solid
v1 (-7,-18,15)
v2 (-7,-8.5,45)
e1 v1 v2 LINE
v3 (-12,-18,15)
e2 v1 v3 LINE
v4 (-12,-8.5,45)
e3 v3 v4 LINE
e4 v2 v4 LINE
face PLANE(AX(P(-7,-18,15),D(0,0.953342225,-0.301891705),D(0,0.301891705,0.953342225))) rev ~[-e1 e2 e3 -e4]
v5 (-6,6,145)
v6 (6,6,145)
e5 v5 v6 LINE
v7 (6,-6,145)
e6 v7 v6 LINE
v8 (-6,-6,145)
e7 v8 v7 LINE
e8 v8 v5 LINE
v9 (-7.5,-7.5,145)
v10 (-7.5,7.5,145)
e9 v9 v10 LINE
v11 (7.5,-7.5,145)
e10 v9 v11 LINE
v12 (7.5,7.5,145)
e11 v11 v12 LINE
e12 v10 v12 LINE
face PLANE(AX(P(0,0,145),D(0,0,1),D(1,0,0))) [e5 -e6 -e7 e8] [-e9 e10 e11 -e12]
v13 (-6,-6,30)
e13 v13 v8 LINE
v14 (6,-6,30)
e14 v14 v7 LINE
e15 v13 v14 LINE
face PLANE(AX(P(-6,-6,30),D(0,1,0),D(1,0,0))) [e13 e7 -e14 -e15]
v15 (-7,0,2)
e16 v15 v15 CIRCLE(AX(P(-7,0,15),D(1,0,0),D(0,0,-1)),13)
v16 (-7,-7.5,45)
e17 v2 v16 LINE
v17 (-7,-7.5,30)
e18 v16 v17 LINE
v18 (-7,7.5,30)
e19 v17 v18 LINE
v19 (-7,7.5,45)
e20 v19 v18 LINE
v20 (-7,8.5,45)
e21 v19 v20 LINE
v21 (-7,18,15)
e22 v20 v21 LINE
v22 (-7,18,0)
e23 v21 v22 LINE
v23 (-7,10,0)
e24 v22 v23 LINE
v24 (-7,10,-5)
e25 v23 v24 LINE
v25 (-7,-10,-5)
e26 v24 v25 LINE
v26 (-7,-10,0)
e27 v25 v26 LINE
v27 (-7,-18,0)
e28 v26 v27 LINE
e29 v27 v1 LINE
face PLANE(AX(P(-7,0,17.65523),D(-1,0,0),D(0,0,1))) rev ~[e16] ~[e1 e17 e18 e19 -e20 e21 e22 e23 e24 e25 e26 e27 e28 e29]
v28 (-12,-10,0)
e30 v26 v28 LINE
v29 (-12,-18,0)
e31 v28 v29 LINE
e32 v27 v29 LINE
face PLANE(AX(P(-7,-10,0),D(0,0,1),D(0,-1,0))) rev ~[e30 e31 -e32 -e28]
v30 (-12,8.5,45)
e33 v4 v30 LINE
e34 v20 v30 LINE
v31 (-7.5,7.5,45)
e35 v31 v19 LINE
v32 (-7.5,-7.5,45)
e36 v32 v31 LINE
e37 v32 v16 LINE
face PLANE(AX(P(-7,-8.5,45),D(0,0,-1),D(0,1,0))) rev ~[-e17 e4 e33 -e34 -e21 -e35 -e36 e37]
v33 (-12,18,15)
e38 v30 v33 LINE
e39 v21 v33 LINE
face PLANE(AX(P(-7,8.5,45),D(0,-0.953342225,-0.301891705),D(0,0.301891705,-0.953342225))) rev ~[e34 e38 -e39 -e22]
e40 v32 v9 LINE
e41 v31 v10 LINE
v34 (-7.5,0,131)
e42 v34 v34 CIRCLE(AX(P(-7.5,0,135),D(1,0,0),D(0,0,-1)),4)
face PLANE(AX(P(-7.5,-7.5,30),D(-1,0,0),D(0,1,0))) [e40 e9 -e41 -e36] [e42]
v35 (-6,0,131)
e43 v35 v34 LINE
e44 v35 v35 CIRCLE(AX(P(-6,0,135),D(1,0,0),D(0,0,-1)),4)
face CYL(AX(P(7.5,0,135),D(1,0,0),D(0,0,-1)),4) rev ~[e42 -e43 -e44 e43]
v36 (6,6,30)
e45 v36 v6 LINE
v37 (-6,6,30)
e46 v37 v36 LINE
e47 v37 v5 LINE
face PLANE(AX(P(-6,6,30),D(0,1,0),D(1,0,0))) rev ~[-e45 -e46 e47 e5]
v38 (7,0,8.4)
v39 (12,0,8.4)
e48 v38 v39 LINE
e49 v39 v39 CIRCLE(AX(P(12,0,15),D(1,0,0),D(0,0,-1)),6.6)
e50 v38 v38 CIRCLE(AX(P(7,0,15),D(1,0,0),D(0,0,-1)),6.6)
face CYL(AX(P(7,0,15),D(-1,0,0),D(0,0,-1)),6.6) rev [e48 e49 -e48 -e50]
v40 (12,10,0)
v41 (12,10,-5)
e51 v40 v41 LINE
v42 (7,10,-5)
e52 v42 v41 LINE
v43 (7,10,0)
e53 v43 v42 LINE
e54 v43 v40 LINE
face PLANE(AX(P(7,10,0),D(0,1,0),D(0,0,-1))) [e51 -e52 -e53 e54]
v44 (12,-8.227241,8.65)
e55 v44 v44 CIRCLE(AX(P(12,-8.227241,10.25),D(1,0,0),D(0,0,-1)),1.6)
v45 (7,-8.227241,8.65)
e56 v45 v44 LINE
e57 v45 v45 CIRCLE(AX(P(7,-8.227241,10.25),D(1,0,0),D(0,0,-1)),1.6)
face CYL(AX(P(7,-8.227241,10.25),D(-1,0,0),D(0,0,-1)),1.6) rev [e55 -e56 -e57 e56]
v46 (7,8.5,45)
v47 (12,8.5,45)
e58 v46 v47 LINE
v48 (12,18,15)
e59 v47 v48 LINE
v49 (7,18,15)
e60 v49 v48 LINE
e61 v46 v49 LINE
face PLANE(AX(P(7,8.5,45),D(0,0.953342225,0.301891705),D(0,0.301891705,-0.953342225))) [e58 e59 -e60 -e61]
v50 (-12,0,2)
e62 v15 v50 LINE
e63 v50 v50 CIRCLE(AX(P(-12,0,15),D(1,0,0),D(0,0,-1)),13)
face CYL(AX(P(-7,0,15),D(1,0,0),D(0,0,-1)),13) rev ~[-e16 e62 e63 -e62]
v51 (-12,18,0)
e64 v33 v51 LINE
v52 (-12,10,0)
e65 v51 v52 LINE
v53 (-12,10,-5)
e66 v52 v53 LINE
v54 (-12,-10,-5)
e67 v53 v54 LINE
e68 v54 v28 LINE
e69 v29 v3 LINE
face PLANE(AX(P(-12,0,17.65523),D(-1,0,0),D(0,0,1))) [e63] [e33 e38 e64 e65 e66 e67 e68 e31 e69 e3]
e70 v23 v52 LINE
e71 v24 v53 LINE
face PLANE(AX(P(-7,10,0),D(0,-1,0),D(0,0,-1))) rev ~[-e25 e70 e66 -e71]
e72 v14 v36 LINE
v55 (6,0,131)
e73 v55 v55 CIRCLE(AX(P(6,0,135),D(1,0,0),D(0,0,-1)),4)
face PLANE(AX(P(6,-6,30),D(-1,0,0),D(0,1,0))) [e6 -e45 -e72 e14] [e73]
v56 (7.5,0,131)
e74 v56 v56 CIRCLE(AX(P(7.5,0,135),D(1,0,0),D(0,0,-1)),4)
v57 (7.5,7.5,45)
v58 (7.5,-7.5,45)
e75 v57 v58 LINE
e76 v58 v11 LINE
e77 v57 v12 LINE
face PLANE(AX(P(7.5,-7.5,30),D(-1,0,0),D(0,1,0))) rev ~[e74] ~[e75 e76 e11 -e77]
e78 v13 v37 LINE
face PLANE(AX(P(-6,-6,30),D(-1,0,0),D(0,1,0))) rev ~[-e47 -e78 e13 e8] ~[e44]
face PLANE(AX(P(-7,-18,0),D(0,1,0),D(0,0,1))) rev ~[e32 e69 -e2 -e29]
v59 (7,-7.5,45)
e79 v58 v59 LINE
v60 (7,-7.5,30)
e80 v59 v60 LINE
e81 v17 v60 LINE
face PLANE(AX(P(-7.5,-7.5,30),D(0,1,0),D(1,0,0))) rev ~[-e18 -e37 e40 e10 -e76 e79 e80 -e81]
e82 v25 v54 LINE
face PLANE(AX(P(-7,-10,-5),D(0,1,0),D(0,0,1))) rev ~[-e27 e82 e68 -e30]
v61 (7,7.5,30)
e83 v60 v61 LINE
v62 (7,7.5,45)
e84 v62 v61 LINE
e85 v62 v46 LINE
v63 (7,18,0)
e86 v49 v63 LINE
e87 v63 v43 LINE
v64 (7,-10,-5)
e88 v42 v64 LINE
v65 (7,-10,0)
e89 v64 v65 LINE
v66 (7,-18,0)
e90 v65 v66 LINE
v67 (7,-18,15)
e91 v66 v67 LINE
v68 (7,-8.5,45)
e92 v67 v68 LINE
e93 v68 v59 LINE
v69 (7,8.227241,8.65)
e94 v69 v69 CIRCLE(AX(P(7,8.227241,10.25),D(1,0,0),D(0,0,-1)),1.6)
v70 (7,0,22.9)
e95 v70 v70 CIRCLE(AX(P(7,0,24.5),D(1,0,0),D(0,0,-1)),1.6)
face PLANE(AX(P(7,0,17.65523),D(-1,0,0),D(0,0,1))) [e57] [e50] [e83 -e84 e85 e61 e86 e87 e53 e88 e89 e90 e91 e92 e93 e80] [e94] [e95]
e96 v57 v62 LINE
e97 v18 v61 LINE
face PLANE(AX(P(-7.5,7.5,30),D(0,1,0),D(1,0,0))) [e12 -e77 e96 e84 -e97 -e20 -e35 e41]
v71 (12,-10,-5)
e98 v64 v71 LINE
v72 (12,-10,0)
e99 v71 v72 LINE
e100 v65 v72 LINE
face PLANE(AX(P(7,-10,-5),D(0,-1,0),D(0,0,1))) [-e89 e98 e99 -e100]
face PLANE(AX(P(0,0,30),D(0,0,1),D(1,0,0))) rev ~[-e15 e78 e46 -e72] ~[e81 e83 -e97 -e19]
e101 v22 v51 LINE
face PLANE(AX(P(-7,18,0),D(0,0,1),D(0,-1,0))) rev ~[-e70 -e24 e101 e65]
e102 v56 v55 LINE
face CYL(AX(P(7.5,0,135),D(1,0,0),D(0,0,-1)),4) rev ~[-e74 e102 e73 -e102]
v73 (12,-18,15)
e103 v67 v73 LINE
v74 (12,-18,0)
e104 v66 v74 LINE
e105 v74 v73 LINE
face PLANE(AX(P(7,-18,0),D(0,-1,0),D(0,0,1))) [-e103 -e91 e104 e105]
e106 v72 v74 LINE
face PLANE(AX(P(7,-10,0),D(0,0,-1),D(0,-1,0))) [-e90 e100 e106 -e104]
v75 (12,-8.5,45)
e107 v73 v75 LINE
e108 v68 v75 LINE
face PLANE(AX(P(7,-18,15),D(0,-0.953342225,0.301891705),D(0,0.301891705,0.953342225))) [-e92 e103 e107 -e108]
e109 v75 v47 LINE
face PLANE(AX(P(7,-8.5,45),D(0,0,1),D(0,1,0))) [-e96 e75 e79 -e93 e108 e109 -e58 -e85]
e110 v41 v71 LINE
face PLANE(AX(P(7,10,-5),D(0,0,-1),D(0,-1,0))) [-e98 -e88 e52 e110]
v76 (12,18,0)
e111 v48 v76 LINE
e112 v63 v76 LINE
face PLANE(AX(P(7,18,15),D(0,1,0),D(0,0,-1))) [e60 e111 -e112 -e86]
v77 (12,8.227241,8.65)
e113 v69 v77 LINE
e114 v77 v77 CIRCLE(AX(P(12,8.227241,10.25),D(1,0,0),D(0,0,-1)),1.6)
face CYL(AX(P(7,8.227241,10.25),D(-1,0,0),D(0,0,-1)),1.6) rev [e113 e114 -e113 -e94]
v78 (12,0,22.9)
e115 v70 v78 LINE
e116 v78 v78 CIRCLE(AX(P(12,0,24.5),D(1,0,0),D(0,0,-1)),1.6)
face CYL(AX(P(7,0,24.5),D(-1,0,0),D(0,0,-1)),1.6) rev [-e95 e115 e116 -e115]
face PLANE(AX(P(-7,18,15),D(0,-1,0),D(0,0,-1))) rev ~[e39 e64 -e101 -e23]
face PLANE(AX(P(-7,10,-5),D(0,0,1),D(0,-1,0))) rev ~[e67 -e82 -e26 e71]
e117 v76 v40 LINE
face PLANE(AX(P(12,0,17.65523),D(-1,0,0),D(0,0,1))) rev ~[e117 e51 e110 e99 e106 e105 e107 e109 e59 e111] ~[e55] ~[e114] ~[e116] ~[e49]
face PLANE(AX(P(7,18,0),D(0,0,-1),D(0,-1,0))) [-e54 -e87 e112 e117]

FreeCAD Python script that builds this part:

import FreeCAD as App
import Part
import Sketcher


def add_polygon(sketch, points):
    """Adds a closed chain of lines whose ends are joined by coincident constraints."""
    first, n = sketch.GeometryCount, len(points)
    for a, b in zip(points, points[1:] + points[:1]):
        sketch.addGeometry(Part.LineSegment(App.Vector(*a, 0), App.Vector(*b, 0)), False)
    for i in range(n):
        sketch.addConstraint(Sketcher.Constraint("Coincident", first + i, 2, first + (i + 1) % n, 1))

doc = App.newDocument("Part")
body = doc.addObject("PartDesign::Body", "Body")

# Sketch on YZ plane
sketch1 = body.newObject("Sketcher::SketchObject", "Sketch")
sketch1.AttachmentSupport = (doc.getObject("YZ_Plane"), [""])
sketch1.MapMode = "FlatFace"
sketch1.AttachmentOffset = App.Placement(App.Vector(0, 0, 7), App.Rotation())
add_polygon(sketch1, [(-10, -5), (10, -5), (10, 0), (18, 0), (18, 15), (8.5, 45), (-8.5, 45), (-18, 15), (-18, 0), (-10, 0)])  # lines 0-9
sketch1.addGeometry(Part.Circle(App.Vector(-8.227241, 10.25, 0), App.Vector(0, 0, 1), 1.6), False)  # 10
sketch1.addGeometry(Part.Circle(App.Vector(0, 15, 0), App.Vector(0, 0, 1), 6.6), False)  # 11
sketch1.addGeometry(Part.Circle(App.Vector(8.227241, 10.25, 0), App.Vector(0, 0, 1), 1.6), False)  # 12
sketch1.addGeometry(Part.Circle(App.Vector(0, 24.5, 0), App.Vector(0, 0, 1), 1.6), False)  # 13
sketch1.addConstraint([
    Sketcher.Constraint("Horizontal", 0),
    Sketcher.Constraint("Vertical", 1),
    Sketcher.Constraint("Horizontal", 2),
    Sketcher.Constraint("Vertical", 3),
    Sketcher.Constraint("Horizontal", 5),
    Sketcher.Constraint("Vertical", 7),
    Sketcher.Constraint("Horizontal", 8),
    Sketcher.Constraint("Vertical", 9),
    Sketcher.Constraint("Equal", 10, 12),
    Sketcher.Constraint("Equal", 12, 13),
    Sketcher.Constraint("Symmetric", 2, 2, 7, 2, -1, 1),
    Sketcher.Constraint("Symmetric", 10, 3, 12, 3, -2),
    Sketcher.Constraint("Symmetric", 1, 2, 8, 2, -2),
    Sketcher.Constraint("PointOnObject", 11, 3, -2),
    Sketcher.Constraint("PointOnObject", 13, 3, -2),
    Sketcher.Constraint("Horizontal", 11, 3, 3, 2),
    Sketcher.Constraint("Horizontal", 3, 2, 6, 2),
    Sketcher.Constraint("Equal", 4, 6),
    Sketcher.Constraint("Diameter", 10, 3.2),
    Sketcher.Constraint("Diameter", 11, 13.2),
    Sketcher.Constraint("DistanceX", 0, 1, 0, 2, 20.0),
    Sketcher.Constraint("DistanceX", 2, 1, 2, 2, 8.0),
    Sketcher.Constraint("DistanceX", 5, 2, 5, 1, 17.0),
    Sketcher.Constraint("DistanceY", 1, 1, 1, 2, 5.0),
    Sketcher.Constraint("DistanceY", 3, 1, 3, 2, 15.0),
    Sketcher.Constraint("DistanceY", -1, 1, 4, 2, 45.0),
    Sketcher.Constraint("DistanceY", -1, 1, 13, 3, 24.5),
    Sketcher.Constraint("DistanceY", -1, 1, 10, 3, 10.25),
    Sketcher.Constraint("DistanceX", 10, 3, -1, 1, 8.227241),
])
pad1 = body.newObject("PartDesign::Pad", "Pad")
pad1.Profile = sketch1
pad1.Length = 5
body2 = doc.addObject("PartDesign::Body", "Body001")

# Sketch on YZ plane
sketch2 = body2.newObject("Sketcher::SketchObject", "Sketch001")
sketch2.AttachmentSupport = (doc.getObject("YZ_Plane001"), [""])
sketch2.MapMode = "FlatFace"
sketch2.AttachmentOffset = App.Placement(App.Vector(0, 0, -7), App.Rotation())
add_polygon(sketch2, [(8.5, 45), (-8.5, 45), (-18, 15), (-18, 0), (-10, 0), (-10, -5), (10, -5), (10, 0), (18, 0), (18, 15)])  # lines 0-9
sketch2.addGeometry(Part.Circle(App.Vector(0, 15, 0), App.Vector(0, 0, 1), 13), False)  # 10
sketch2.addConstraint([
    Sketcher.Constraint("Horizontal", 0),
    Sketcher.Constraint("Vertical", 2),
    Sketcher.Constraint("Horizontal", 3),
    Sketcher.Constraint("Vertical", 4),
    Sketcher.Constraint("Horizontal", 5),
    Sketcher.Constraint("Vertical", 6),
    Sketcher.Constraint("Horizontal", 7),
    Sketcher.Constraint("Vertical", 8),
    Sketcher.Constraint("Symmetric", 3, 2, 6, 2, -1, 1),
    Sketcher.Constraint("Symmetric", 2, 2, 7, 2, -2),
    Sketcher.Constraint("PointOnObject", 10, 3, -2),
    Sketcher.Constraint("Horizontal", 10, 3, 1, 2),
    Sketcher.Constraint("Horizontal", 1, 2, 8, 2),
    Sketcher.Constraint("Equal", 1, 9),
    Sketcher.Constraint("Diameter", 10, 26.0),
    Sketcher.Constraint("DistanceX", 0, 2, 0, 1, 17.0),
    Sketcher.Constraint("DistanceX", 3, 1, 3, 2, 8.0),
    Sketcher.Constraint("DistanceX", 5, 1, 5, 2, 20.0),
    Sketcher.Constraint("DistanceY", 2, 2, 2, 1, 15.0),
    Sketcher.Constraint("DistanceY", 4, 2, 4, 1, 5.0),
    Sketcher.Constraint("DistanceY", -1, 1, 0, 2, 45.0),
])
pad2 = body2.newObject("PartDesign::Pad", "Pad001")
pad2.Profile = sketch2
pad2.Length = 5
pad2.Reversed = True
body.AllowCompound = True
doc.recompute()

boolean = body.newObject("PartDesign::Boolean", "Boolean")
boolean.Type = "Fuse"
boolean.addObjects([body2])

# Sketch on XY plane
sketch3 = body.newObject("Sketcher::SketchObject", "Sketch002")
sketch3.AttachmentSupport = (doc.getObject("XY_Plane"), [""])
sketch3.MapMode = "FlatFace"
sketch3.AttachmentOffset = App.Placement(App.Vector(0, 0, 45), App.Rotation())
add_polygon(sketch3, [(-7.5, 7.5), (-7.5, -7.5), (7.5, -7.5), (7.5, 7.5)])  # lines 0-3
add_polygon(sketch3, [(6, -6), (-6, -6), (-6, 6), (6, 6)])  # lines 4-7
sketch3.addConstraint([
    Sketcher.Constraint("Vertical", 0),
    Sketcher.Constraint("Horizontal", 1),
    Sketcher.Constraint("Vertical", 2),
    Sketcher.Constraint("Horizontal", 3),
    Sketcher.Constraint("Horizontal", 4),
    Sketcher.Constraint("Vertical", 5),
    Sketcher.Constraint("Horizontal", 6),
    Sketcher.Constraint("Vertical", 7),
    Sketcher.Constraint("Symmetric", 0, 2, 2, 2, -1, 1),
    Sketcher.Constraint("Symmetric", 4, 2, 6, 2, -1, 1),
    Sketcher.Constraint("Equal", 3, 0),
    Sketcher.Constraint("Equal", 6, 5),
    Sketcher.Constraint("DistanceX", 1, 1, 1, 2, 15.0),
    Sketcher.Constraint("DistanceX", 4, 2, 4, 1, 12.0),
])
pad3 = body.newObject("PartDesign::Pad", "Pad002")
pad3.Profile = sketch3
pad3.Type = "TwoLengths"
pad3.Length = 100
pad3.Length2 = 15

# Sketch on YZ plane
sketch4 = body.newObject("Sketcher::SketchObject", "Sketch003")
sketch4.AttachmentSupport = (doc.getObject("YZ_Plane"), [""])
sketch4.MapMode = "FlatFace"
sketch4.AttachmentOffset = App.Placement(App.Vector(0, 0, 7.5), App.Rotation())
sketch4.addGeometry(Part.Circle(App.Vector(0, 135, 0), App.Vector(0, 0, 1), 4), False)
sketch4.addConstraint([
    Sketcher.Constraint("PointOnObject", 0, 3, -2),
    Sketcher.Constraint("Diameter", 0, 8.0),
    Sketcher.Constraint("DistanceY", -1, 1, 0, 3, 135.0),
])
pocket1 = body.newObject("PartDesign::Pocket", "Pocket")
pocket1.Profile = sketch4
pocket1.Type = "ThroughAll"

doc.recompute()
